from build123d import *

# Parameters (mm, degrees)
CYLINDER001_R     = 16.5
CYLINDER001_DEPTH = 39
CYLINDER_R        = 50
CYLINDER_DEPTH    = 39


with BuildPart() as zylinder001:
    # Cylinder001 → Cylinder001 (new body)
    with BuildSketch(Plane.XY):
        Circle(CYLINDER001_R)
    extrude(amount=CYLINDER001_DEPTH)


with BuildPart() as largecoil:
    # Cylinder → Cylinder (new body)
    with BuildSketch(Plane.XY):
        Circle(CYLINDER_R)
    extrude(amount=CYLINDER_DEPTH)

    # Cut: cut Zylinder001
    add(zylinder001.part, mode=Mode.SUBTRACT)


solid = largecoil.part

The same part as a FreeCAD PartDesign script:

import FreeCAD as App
import Part
import Sketcher
from FreeCAD import Vector

doc = App.newDocument("Part")
body = doc.addObject("PartDesign::Body", "Body")

# Sketch on XY plane
sketch1 = body.newObject("Sketcher::SketchObject", "Sketch")
sketch1.AttachmentSupport = (doc.getObject("XY_Plane"), [""])
sketch1.MapMode = "FlatFace"
sketch1.addGeometry(Part.Circle(Vector(0, 0, 0), Vector(0, 0, 1), 16.5), False)
sketch1.addConstraint([
    Sketcher.Constraint("Coincident", 0, 3, -1, 1),
    Sketcher.Constraint("Diameter", 0, 33.0),
])
pad1 = body.newObject("PartDesign::Pad", "Pad")
pad1.Profile = sketch1
pad1.Length = 39
body2 = doc.addObject("PartDesign::Body", "Body001")

# Sketch on XY plane
sketch2 = body2.newObject("Sketcher::SketchObject", "Sketch001")
sketch2.AttachmentSupport = (doc.getObject("XY_Plane001"), [""])
sketch2.MapMode = "FlatFace"
sketch2.addGeometry(Part.Circle(Vector(0, 0, 0), Vector(0, 0, 1), 50), False)
sketch2.addConstraint([
    Sketcher.Constraint("Coincident", 0, 3, -1, 1),
    Sketcher.Constraint("Diameter", 0, 100.0),
])
pad2 = body2.newObject("PartDesign::Pad", "Pad001")
pad2.Profile = sketch2
pad2.Length = 39
doc.recompute()

boolean = body2.newObject("PartDesign::Boolean", "Boolean")
boolean.Type = "Cut"
boolean.addObjects([body])

doc.recompute()
